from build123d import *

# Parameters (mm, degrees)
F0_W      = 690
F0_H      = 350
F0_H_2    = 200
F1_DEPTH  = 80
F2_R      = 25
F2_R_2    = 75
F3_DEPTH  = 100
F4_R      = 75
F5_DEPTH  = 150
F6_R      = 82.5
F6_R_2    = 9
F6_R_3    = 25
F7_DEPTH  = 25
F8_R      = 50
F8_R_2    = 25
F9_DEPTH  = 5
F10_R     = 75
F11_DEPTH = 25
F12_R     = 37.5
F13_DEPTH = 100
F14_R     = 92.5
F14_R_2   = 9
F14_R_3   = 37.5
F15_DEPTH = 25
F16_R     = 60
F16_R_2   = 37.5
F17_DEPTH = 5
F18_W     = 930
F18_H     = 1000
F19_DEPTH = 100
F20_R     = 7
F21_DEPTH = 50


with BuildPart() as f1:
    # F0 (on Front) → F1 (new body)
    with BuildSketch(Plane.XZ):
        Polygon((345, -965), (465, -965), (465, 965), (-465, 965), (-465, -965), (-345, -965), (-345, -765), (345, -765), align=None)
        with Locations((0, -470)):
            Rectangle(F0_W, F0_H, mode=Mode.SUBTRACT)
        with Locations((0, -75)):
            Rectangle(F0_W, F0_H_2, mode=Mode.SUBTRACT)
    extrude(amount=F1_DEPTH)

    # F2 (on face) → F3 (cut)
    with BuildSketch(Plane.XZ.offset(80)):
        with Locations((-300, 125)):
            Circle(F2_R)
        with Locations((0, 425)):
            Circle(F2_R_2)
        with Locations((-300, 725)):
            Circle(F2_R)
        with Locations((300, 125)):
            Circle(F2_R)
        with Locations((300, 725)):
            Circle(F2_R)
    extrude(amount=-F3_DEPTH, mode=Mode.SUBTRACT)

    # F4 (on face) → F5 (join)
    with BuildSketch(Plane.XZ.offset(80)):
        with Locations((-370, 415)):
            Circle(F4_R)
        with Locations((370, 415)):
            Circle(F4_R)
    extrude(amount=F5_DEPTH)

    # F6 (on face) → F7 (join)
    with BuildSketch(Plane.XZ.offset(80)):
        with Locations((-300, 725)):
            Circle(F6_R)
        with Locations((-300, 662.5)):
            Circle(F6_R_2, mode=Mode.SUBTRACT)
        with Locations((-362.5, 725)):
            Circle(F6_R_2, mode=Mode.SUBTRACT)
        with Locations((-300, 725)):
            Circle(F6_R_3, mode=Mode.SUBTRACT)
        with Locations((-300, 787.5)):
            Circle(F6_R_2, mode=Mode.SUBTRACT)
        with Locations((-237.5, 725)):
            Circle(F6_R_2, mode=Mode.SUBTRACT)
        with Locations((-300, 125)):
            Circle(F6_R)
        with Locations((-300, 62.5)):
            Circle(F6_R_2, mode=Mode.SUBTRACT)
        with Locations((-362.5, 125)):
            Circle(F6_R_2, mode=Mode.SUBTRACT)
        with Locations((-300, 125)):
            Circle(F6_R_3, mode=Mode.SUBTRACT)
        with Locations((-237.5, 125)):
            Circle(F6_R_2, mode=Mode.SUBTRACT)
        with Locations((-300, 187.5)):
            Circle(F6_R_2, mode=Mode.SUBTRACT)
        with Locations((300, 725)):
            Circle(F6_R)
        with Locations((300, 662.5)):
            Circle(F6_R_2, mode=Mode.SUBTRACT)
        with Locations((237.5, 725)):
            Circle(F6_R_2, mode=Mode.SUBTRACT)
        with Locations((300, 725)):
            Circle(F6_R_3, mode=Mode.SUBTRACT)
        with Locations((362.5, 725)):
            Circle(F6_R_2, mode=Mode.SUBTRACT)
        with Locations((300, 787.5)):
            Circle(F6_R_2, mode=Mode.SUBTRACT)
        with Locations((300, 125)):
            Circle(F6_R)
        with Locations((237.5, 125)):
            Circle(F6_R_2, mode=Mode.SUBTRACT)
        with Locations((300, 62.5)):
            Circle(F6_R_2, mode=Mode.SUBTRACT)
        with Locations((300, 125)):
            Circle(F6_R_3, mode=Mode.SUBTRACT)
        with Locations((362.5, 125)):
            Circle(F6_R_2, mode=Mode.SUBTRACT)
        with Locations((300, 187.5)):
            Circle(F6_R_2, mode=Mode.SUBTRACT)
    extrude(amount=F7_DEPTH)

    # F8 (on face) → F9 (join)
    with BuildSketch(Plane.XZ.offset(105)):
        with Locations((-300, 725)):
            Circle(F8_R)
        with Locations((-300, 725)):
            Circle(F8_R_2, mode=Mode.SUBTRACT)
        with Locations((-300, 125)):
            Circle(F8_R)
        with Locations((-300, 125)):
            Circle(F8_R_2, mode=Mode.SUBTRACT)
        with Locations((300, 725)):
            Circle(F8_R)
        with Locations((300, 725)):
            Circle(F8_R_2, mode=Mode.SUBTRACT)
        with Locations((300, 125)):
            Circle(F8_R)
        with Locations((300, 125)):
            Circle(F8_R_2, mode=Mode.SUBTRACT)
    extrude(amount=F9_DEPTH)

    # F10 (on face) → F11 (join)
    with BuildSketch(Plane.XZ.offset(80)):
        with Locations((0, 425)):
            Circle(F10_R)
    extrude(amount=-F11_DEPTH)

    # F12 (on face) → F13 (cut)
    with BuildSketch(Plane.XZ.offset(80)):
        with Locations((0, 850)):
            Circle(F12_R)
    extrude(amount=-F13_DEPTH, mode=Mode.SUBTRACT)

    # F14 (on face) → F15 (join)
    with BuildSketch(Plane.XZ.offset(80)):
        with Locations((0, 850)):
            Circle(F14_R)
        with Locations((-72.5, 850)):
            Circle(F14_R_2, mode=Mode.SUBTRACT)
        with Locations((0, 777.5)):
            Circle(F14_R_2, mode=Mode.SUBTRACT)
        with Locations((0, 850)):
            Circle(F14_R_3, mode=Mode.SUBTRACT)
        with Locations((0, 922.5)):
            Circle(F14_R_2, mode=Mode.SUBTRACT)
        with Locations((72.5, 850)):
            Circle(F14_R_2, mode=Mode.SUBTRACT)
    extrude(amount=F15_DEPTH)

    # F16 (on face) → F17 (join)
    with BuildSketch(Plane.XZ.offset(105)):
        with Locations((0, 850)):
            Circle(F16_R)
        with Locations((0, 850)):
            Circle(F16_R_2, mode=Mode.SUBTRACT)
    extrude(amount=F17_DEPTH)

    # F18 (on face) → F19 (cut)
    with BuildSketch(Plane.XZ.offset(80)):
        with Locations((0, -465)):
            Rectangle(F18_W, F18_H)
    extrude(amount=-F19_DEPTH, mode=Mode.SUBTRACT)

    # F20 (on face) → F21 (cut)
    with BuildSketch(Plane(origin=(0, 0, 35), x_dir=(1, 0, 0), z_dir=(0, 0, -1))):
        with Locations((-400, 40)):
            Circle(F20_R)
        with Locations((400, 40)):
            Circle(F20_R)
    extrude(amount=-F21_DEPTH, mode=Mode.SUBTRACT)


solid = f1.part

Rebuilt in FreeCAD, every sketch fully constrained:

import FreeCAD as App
import Part
import Sketcher

V = App.Vector


def add_polygon(sketch, points):
    """Adds a closed chain of lines whose ends are joined by coincident constraints."""
    first, n = sketch.GeometryCount, len(points)
    for a, b in zip(points, points[1:] + points[:1]):
        sketch.addGeometry(Part.LineSegment(App.Vector(*a, 0), App.Vector(*b, 0)), False)
    for i in range(n):
        sketch.addConstraint(Sketcher.Constraint("Coincident", first + i, 2, first + (i + 1) % n, 1))

doc = App.newDocument("Part")
body = doc.addObject("PartDesign::Body", "Body")

# Sketch on XZ plane
sketch1 = body.newObject("Sketcher::SketchObject", "Sketch")
sketch1.AttachmentSupport = (doc.getObject("XZ_Plane"), [""])
sketch1.MapMode = "FlatFace"
add_polygon(sketch1, [(345, -965), (465, -965), (465, 965), (-465, 965), (-465, -965), (-345, -965), (-345, -765), (345, -765)])  # lines 0-7
add_polygon(sketch1, [(345, -645), (-345, -645), (-345, -295), (345, -295)])  # lines 8-11
add_polygon(sketch1, [(345, -175), (-345, -175), (-345, 25), (345, 25)])  # lines 12-15
sketch1.addConstraint([
    Sketcher.Constraint("Horizontal", 0),
    Sketcher.Constraint("Vertical", 1),
    Sketcher.Constraint("Horizontal", 2),
    Sketcher.Constraint("Vertical", 3),
    Sketcher.Constraint("Horizontal", 4),
    Sketcher.Constraint("Vertical", 5),
    Sketcher.Constraint("Horizontal", 6),
    Sketcher.Constraint("Vertical", 7),
    Sketcher.Constraint("Horizontal", 8),
    Sketcher.Constraint("Vertical", 9),
    Sketcher.Constraint("Horizontal", 10),
    Sketcher.Constraint("Vertical", 11),
    Sketcher.Constraint("Horizontal", 12),
    Sketcher.Constraint("Vertical", 13),
    Sketcher.Constraint("Horizontal", 14),
    Sketcher.Constraint("Vertical", 15),
    Sketcher.Constraint("Symmetric", 0, 2, 2, 2, -1, 1),
    Sketcher.Constraint("Symmetric", 4, 2, 7, 2, -2),
    Sketcher.Constraint("Vertical", 5, 2, 8, 2),
    Sketcher.Constraint("Vertical", 7, 2, 10, 2),
    Sketcher.Constraint("Vertical", 9, 2, 12, 2),
    Sketcher.Constraint("Vertical", 11, 2, 14, 2),
    Sketcher.Constraint("Equal", 7, 13),
    Sketcher.Constraint("DistanceX", 0, 1, 0, 2, 120.0),
    Sketcher.Constraint("DistanceX", 2, 2, 2, 1, 930.0),
    Sketcher.Constraint("DistanceY", 1, 1, 1, 2, 1930.0),
    Sketcher.Constraint("DistanceY", 5, 1, 5, 2, 200.0),
    Sketcher.Constraint("DistanceY", 9, 1, 9, 2, 350.0),
    Sketcher.Constraint("DistanceY", 8, 2, -1, 1, 645.0),
    Sketcher.Constraint("DistanceY", 12, 2, -1, 1, 175.0),
])
pad1 = body.newObject("PartDesign::Pad", "Pad")
pad1.Profile = sketch1
pad1.Length = 80

# Sketch on XZ plane
sketch2 = body.newObject("Sketcher::SketchObject", "Sketch001")
sketch2.AttachmentSupport = (doc.getObject("XZ_Plane"), [""])
sketch2.MapMode = "FlatFace"
sketch2.AttachmentOffset = App.Placement(V(0, 0, 80), App.Rotation())
sketch2.addGeometry([
    Part.Circle(V(-300, 125, 0), V(0, 0, 1), 25),  # 0
    Part.Circle(V(0, 425, 0), V(0, 0, 1), 75),  # 1
    Part.Circle(V(-300, 725, 0), V(0, 0, 1), 25),  # 2
    Part.Circle(V(300, 125, 0), V(0, 0, 1), 25),  # 3
    Part.Circle(V(300, 725, 0), V(0, 0, 1), 25),  # 4
], False)
sketch2.addConstraint([
    Sketcher.Constraint("Equal", 0, 2),
    Sketcher.Constraint("Equal", 2, 3),
    Sketcher.Constraint("Equal", 3, 4),
    Sketcher.Constraint("Symmetric", 0, 3, 3, 3, -2),
    Sketcher.Constraint("Symmetric", 2, 3, 4, 3, -2),
    Sketcher.Constraint("PointOnObject", 1, 3, -2),
    Sketcher.Constraint("Vertical", 0, 3, 2, 3),
    Sketcher.Constraint("Diameter", 0, 50.0),
    Sketcher.Constraint("Diameter", 1, 150.0),
    Sketcher.Constraint("DistanceX", 0, 3, -1, 1, 300.0),
    Sketcher.Constraint("DistanceY", -1, 1, 0, 3, 125.0),
    Sketcher.Constraint("DistanceY", -1, 1, 1, 3, 425.0),
    Sketcher.Constraint("DistanceY", -1, 1, 2, 3, 725.0),
])
pocket1 = body.newObject("PartDesign::Pocket", "Pocket")
pocket1.Profile = sketch2
pocket1.Length = 100

# Sketch on XZ plane
sketch3 = body.newObject("Sketcher::SketchObject", "Sketch002")
sketch3.AttachmentSupport = (doc.getObject("XZ_Plane"), [""])
sketch3.MapMode = "FlatFace"
sketch3.AttachmentOffset = App.Placement(V(0, 0, 80), App.Rotation())
sketch3.addGeometry([
    Part.Circle(V(-370, 415, 0), V(0, 0, 1), 75),
    Part.Circle(V(370, 415, 0), V(0, 0, 1), 75),
], False)
sketch3.addConstraint([
    Sketcher.Constraint("Equal", 0, 1),
    Sketcher.Constraint("Symmetric", 0, 3, 1, 3, -2),
    Sketcher.Constraint("Diameter", 0, 150.0),
    Sketcher.Constraint("DistanceX", 0, 3, -1, 1, 370.0),
    Sketcher.Constraint("DistanceY", -1, 1, 0, 3, 415.0),
])
pad2 = body.newObject("PartDesign::Pad", "Pad001")
pad2.Profile = sketch3
pad2.Length = 150

# Sketch on XZ plane
sketch4 = body.newObject("Sketcher::SketchObject", "Sketch003")
sketch4.AttachmentSupport = (doc.getObject("XZ_Plane"), [""])
sketch4.MapMode = "FlatFace"
sketch4.AttachmentOffset = App.Placement(V(0, 0, 80), App.Rotation())
sketch4.addGeometry([
    Part.Circle(V(-300, 725, 0), V(0, 0, 1), 82),  # 0
    Part.Circle(V(-300, 662, 0), V(0, 0, 1), 9),  # 1
    Part.Circle(V(-362, 725, 0), V(0, 0, 1), 9),  # 2
    Part.Circle(V(-300, 725, 0), V(0, 0, 1), 25),  # 3
    Part.Circle(V(-238, 725, 0), V(0, 0, 1), 9),  # 4
    Part.Circle(V(-300, 788, 0), V(0, 0, 1), 9),  # 5
    Part.Circle(V(-300, 125, 0), V(0, 0, 1), 82),  # 6
    Part.Circle(V(-300, 62, 0), V(0, 0, 1), 9),  # 7
    Part.Circle(V(-362, 125, 0), V(0, 0, 1), 9),  # 8
    Part.Circle(V(-300, 125, 0), V(0, 0, 1), 25),  # 9
    Part.Circle(V(-238, 125, 0), V(0, 0, 1), 9),  # 10
    Part.Circle(V(-300, 188, 0), V(0, 0, 1), 9),  # 11
    Part.Circle(V(300, 725, 0), V(0, 0, 1), 82),  # 12
    Part.Circle(V(300, 662, 0), V(0, 0, 1), 9),  # 13
    Part.Circle(V(238, 725, 0), V(0, 0, 1), 9),  # 14
    Part.Circle(V(300, 725, 0), V(0, 0, 1), 25),  # 15
    Part.Circle(V(362, 725, 0), V(0, 0, 1), 9),  # 16
    Part.Circle(V(300, 788, 0), V(0, 0, 1), 9),  # 17
    Part.Circle(V(300, 125, 0), V(0, 0, 1), 82),  # 18
    Part.Circle(V(300, 62, 0), V(0, 0, 1), 9),  # 19
    Part.Circle(V(238, 125, 0), V(0, 0, 1), 9),  # 20
    Part.Circle(V(300, 125, 0), V(0, 0, 1), 25),  # 21
    Part.Circle(V(362, 125, 0), V(0, 0, 1), 9),  # 22
    Part.Circle(V(300, 188, 0), V(0, 0, 1), 9),  # 23
], False)
sketch4.addConstraint([
    Sketcher.Constraint("Coincident", 3, 3, 0, 3),
    Sketcher.Constraint("Coincident", 9, 3, 6, 3),
    Sketcher.Constraint("Coincident", 15, 3, 12, 3),
    Sketcher.Constraint("Coincident", 21, 3, 18, 3),
    Sketcher.Constraint("Equal", 1, 2),
    Sketcher.Constraint("Equal", 2, 4),
    Sketcher.Constraint("Equal", 4, 5),
    Sketcher.Constraint("Equal", 0, 6),
    Sketcher.Constraint("Equal", 5, 7),
    Sketcher.Constraint("Equal", 7, 8),
    Sketcher.Constraint("Equal", 3, 9),
    Sketcher.Constraint("Equal", 8, 10),
    Sketcher.Constraint("Equal", 10, 11),
    Sketcher.Constraint("Equal", 6, 12),
    Sketcher.Constraint("Equal", 11, 13),
    Sketcher.Constraint("Equal", 13, 14),
    Sketcher.Constraint("Equal", 9, 15),
    Sketcher.Constraint("Equal", 14, 16),
    Sketcher.Constraint("Equal", 16, 17),
    Sketcher.Constraint("Equal", 12, 18),
    Sketcher.Constraint("Equal", 17, 19),
    Sketcher.Constraint("Equal", 19, 20),
    Sketcher.Constraint("Equal", 15, 21),
    Sketcher.Constraint("Equal", 20, 22),
    Sketcher.Constraint("Equal", 22, 23),
    Sketcher.Constraint("Symmetric", 0, 3, 12, 3, -2),
    Sketcher.Constraint("Symmetric", 1, 3, 13, 3, -2),
    Sketcher.Constraint("Symmetric", 4, 3, 14, 3, -2),
    Sketcher.Constraint("Symmetric", 2, 3, 16, 3, -2),
    Sketcher.Constraint("Symmetric", 5, 3, 17, 3, -2),
    Sketcher.Constraint("Symmetric", 6, 3, 18, 3, -2),
    Sketcher.Constraint("Symmetric", 7, 3, 19, 3, -2),
    Sketcher.Constraint("Symmetric", 10, 3, 20, 3, -2),
    Sketcher.Constraint("Symmetric", 8, 3, 22, 3, -2),
    Sketcher.Constraint("Symmetric", 11, 3, 23, 3, -2),
    Sketcher.Constraint("Horizontal", 0, 3, 2, 3),
    Sketcher.Constraint("Horizontal", 3, 3, 4, 3),
    Sketcher.Constraint("Horizontal", 6, 3, 8, 3),
    Sketcher.Constraint("Horizontal", 9, 3, 10, 3),
    Sketcher.Constraint("Vertical", 0, 3, 1, 3),
    Sketcher.Constraint("Vertical", 3, 3, 5, 3),
    Sketcher.Constraint("Vertical", 5, 3, 6, 3),
    Sketcher.Constraint("Vertical", 6, 3, 7, 3),
    Sketcher.Constraint("Vertical", 2, 3, 8, 3),
    Sketcher.Constraint("Vertical", 4, 3, 10, 3),
    Sketcher.Constraint("Vertical", 9, 3, 11, 3),
    Sketcher.Constraint("Diameter", 0, 165.0),
    Sketcher.Constraint("Diameter", 1, 18.0),
    Sketcher.Constraint("Diameter", 3, 50.0),
    Sketcher.Constraint("DistanceX", 0, 3, -1, 1, 300.0),
    Sketcher.Constraint("DistanceY", -1, 1, 0, 3, 725.0),
    Sketcher.Constraint("DistanceY", -1, 1, 6, 3, 125.0),
    Sketcher.Constraint("DistanceX", 2, 3, 4, 3, 125.0),
    Sketcher.Constraint("DistanceY", 1, 3, 5, 3, 125.0),
    Sketcher.Constraint("DistanceY", 7, 3, 1, 3, 600.0),
    Sketcher.Constraint("DistanceY", 7, 3, 11, 3, 125.0),
    Sketcher.Constraint("DistanceX", 4, 3, 14, 3, 475.0),
    Sketcher.Constraint("DistanceY", -1, 1, 1, 3, 662.5),
])
pad3 = body.newObject("PartDesign::Pad", "Pad002")
pad3.Profile = sketch4
pad3.Length = 25

# Sketch on XZ plane
sketch5 = body.newObject("Sketcher::SketchObject", "Sketch004")
sketch5.AttachmentSupport = (doc.getObject("XZ_Plane"), [""])
sketch5.MapMode = "FlatFace"
sketch5.AttachmentOffset = App.Placement(V(0, 0, 105), App.Rotation())
sketch5.addGeometry([
    Part.Circle(V(-300, 725, 0), V(0, 0, 1), 50),  # 0
    Part.Circle(V(-300, 725, 0), V(0, 0, 1), 25),  # 1
    Part.Circle(V(-300, 125, 0), V(0, 0, 1), 50),  # 2
    Part.Circle(V(-300, 125, 0), V(0, 0, 1), 25),  # 3
    Part.Circle(V(300, 725, 0), V(0, 0, 1), 50),  # 4
    Part.Circle(V(300, 725, 0), V(0, 0, 1), 25),  # 5
    Part.Circle(V(300, 125, 0), V(0, 0, 1), 50),  # 6
    Part.Circle(V(300, 125, 0), V(0, 0, 1), 25),  # 7
], False)
sketch5.addConstraint([
    Sketcher.Constraint("Coincident", 1, 3, 0, 3),
    Sketcher.Constraint("Coincident", 3, 3, 2, 3),
    Sketcher.Constraint("Coincident", 5, 3, 4, 3),
    Sketcher.Constraint("Coincident", 7, 3, 6, 3),
    Sketcher.Constraint("Equal", 0, 2),
    Sketcher.Constraint("Equal", 1, 3),
    Sketcher.Constraint("Equal", 2, 4),
    Sketcher.Constraint("Equal", 3, 5),
    Sketcher.Constraint("Equal", 4, 6),
    Sketcher.Constraint("Equal", 5, 7),
    Sketcher.Constraint("Symmetric", 0, 3, 4, 3, -2),
    Sketcher.Constraint("Symmetric", 2, 3, 6, 3, -2),
    Sketcher.Constraint("Vertical", 1, 3, 2, 3),
    Sketcher.Constraint("Diameter", 0, 100.0),
    Sketcher.Constraint("Diameter", 1, 50.0),
    Sketcher.Constraint("DistanceX", 0, 3, -1, 1, 300.0),
    Sketcher.Constraint("DistanceY", -1, 1, 0, 3, 725.0),
    Sketcher.Constraint("DistanceY", -1, 1, 2, 3, 125.0),
])
pad4 = body.newObject("PartDesign::Pad", "Pad003")
pad4.Profile = sketch5
pad4.Length = 5

# Sketch on XZ plane
sketch6 = body.newObject("Sketcher::SketchObject", "Sketch005")
sketch6.AttachmentSupport = (doc.getObject("XZ_Plane"), [""])
sketch6.MapMode = "FlatFace"
sketch6.AttachmentOffset = App.Placement(V(0, 0, 80), App.Rotation())
sketch6.addGeometry(Part.Circle(V(0, 425, 0), V(0, 0, 1), 75), False)
sketch6.addConstraint([
    Sketcher.Constraint("PointOnObject", 0, 3, -2),
    Sketcher.Constraint("Diameter", 0, 150.0),
    Sketcher.Constraint("DistanceY", -1, 1, 0, 3, 425.0),
])
pad5 = body.newObject("PartDesign::Pad", "Pad004")
pad5.Profile = sketch6
pad5.Length = 25
pad5.Reversed = True

# Sketch on XZ plane
sketch7 = body.newObject("Sketcher::SketchObject", "Sketch006")
sketch7.AttachmentSupport = (doc.getObject("XZ_Plane"), [""])
sketch7.MapMode = "FlatFace"
sketch7.AttachmentOffset = App.Placement(V(0, 0, 80), App.Rotation())
sketch7.addGeometry(Part.Circle(V(0, 850, 0), V(0, 0, 1), 38), False)
sketch7.addConstraint([
    Sketcher.Constraint("PointOnObject", 0, 3, -2),
    Sketcher.Constraint("Diameter", 0, 75.0),
    Sketcher.Constraint("DistanceY", -1, 1, 0, 3, 850.0),
])
pocket2 = body.newObject("PartDesign::Pocket", "Pocket001")
pocket2.Profile = sketch7
pocket2.Length = 100

# Sketch on XZ plane
sketch8 = body.newObject("Sketcher::SketchObject", "Sketch007")
sketch8.AttachmentSupport = (doc.getObject("XZ_Plane"), [""])
sketch8.MapMode = "FlatFace"
sketch8.AttachmentOffset = App.Placement(V(0, 0, 80), App.Rotation())
sketch8.addGeometry([
    Part.Circle(V(0, 850, 0), V(0, 0, 1), 92),  # 0
    Part.Circle(V(0, 778, 0), V(0, 0, 1), 9),  # 1
    Part.Circle(V(-72, 850, 0), V(0, 0, 1), 9),  # 2
    Part.Circle(V(0, 850, 0), V(0, 0, 1), 38),  # 3
    Part.Circle(V(72, 850, 0), V(0, 0, 1), 9),  # 4
    Part.Circle(V(0, 922, 0), V(0, 0, 1), 9),  # 5
], False)
sketch8.addConstraint([
    Sketcher.Constraint("Coincident", 3, 3, 0, 3),
    Sketcher.Constraint("Equal", 1, 2),
    Sketcher.Constraint("Equal", 2, 4),
    Sketcher.Constraint("Equal", 4, 5),
    Sketcher.Constraint("Symmetric", 2, 3, 4, 3, -2),
    Sketcher.Constraint("PointOnObject", 0, 3, -2),
    Sketcher.Constraint("PointOnObject", 1, 3, -2),
    Sketcher.Constraint("PointOnObject", 5, 3, -2),
    Sketcher.Constraint("Horizontal", 0, 3, 2, 3),
    Sketcher.Constraint("Diameter", 0, 185.0),
    Sketcher.Constraint("Diameter", 1, 18.0),
    Sketcher.Constraint("Diameter", 3, 75.0),
    Sketcher.Constraint("DistanceY", -1, 1, 0, 3, 850.0),
    Sketcher.Constraint("DistanceX", 2, 3, 4, 3, 145.0),
    Sketcher.Constraint("DistanceY", 1, 3, 5, 3, 145.0),
    Sketcher.Constraint("DistanceY", -1, 1, 1, 3, 777.5),
])
pad6 = body.newObject("PartDesign::Pad", "Pad005")
pad6.Profile = sketch8
pad6.Length = 25

# Sketch on XZ plane
sketch9 = body.newObject("Sketcher::SketchObject", "Sketch008")
sketch9.AttachmentSupport = (doc.getObject("XZ_Plane"), [""])
sketch9.MapMode = "FlatFace"
sketch9.AttachmentOffset = App.Placement(V(0, 0, 105), App.Rotation())
sketch9.addGeometry([
    Part.Circle(V(0, 850, 0), V(0, 0, 1), 60),
    Part.Circle(V(0, 850, 0), V(0, 0, 1), 38),
], False)
sketch9.addConstraint([
    Sketcher.Constraint("Coincident", 1, 3, 0, 3),
    Sketcher.Constraint("PointOnObject", 0, 3, -2),
    Sketcher.Constraint("Diameter", 0, 120.0),
    Sketcher.Constraint("Diameter", 1, 75.0),
    Sketcher.Constraint("DistanceY", -1, 1, 0, 3, 850.0),
])
pad7 = body.newObject("PartDesign::Pad", "Pad006")
pad7.Profile = sketch9
pad7.Length = 5

# Sketch on XZ plane
sketch10 = body.newObject("Sketcher::SketchObject", "Sketch009")
sketch10.AttachmentSupport = (doc.getObject("XZ_Plane"), [""])
sketch10.MapMode = "FlatFace"
sketch10.AttachmentOffset = App.Placement(V(0, 0, 80), App.Rotation())
add_polygon(sketch10, [(-465, 35), (-465, -965), (465, -965), (465, 35)])  # lines 0-3
sketch10.addConstraint([
    Sketcher.Constraint("Vertical", 0),
    Sketcher.Constraint("Horizontal", 1),
    Sketcher.Constraint("Vertical", 2),
    Sketcher.Constraint("Horizontal", 3),
    Sketcher.Constraint("DistanceX", 1, 1, 1, 2, 930.0),
    Sketcher.Constraint("DistanceY", 0, 2, 0, 1, 1000.0),
    Sketcher.Constraint("DistanceX", 0, 2, -1, 1, 465.0),
    Sketcher.Constraint("DistanceY", 0, 2, -1, 1, 965.0),
])
pocket3 = body.newObject("PartDesign::Pocket", "Pocket002")
pocket3.Profile = sketch10
pocket3.Length = 100

# Sketch on XY plane
sketch11 = body.newObject("Sketcher::SketchObject", "Sketch010")
sketch11.AttachmentSupport = (doc.getObject("XY_Plane"), [""])
sketch11.MapMode = "FlatFace"
sketch11.AttachmentOffset = App.Placement(V(0, 0, 35), App.Rotation())
sketch11.addGeometry([
    Part.Circle(V(-400, -40, 0), V(0, 0, 1), 7),
    Part.Circle(V(400, -40, 0), V(0, 0, 1), 7),
], False)
sketch11.addConstraint([
    Sketcher.Constraint("Equal", 0, 1),
    Sketcher.Constraint("Symmetric", 0, 3, 1, 3, -2),
    Sketcher.Constraint("Diameter", 0, 14.0),
    Sketcher.Constraint("DistanceX", 0, 3, -1, 1, 400.0),
    Sketcher.Constraint("DistanceY", 0, 3, -1, 1, 40.0),
])
pocket4 = body.newObject("PartDesign::Pocket", "Pocket003")
pocket4.Profile = sketch11
pocket4.Length = 50
pocket4.Reversed = True

doc.recompute()
